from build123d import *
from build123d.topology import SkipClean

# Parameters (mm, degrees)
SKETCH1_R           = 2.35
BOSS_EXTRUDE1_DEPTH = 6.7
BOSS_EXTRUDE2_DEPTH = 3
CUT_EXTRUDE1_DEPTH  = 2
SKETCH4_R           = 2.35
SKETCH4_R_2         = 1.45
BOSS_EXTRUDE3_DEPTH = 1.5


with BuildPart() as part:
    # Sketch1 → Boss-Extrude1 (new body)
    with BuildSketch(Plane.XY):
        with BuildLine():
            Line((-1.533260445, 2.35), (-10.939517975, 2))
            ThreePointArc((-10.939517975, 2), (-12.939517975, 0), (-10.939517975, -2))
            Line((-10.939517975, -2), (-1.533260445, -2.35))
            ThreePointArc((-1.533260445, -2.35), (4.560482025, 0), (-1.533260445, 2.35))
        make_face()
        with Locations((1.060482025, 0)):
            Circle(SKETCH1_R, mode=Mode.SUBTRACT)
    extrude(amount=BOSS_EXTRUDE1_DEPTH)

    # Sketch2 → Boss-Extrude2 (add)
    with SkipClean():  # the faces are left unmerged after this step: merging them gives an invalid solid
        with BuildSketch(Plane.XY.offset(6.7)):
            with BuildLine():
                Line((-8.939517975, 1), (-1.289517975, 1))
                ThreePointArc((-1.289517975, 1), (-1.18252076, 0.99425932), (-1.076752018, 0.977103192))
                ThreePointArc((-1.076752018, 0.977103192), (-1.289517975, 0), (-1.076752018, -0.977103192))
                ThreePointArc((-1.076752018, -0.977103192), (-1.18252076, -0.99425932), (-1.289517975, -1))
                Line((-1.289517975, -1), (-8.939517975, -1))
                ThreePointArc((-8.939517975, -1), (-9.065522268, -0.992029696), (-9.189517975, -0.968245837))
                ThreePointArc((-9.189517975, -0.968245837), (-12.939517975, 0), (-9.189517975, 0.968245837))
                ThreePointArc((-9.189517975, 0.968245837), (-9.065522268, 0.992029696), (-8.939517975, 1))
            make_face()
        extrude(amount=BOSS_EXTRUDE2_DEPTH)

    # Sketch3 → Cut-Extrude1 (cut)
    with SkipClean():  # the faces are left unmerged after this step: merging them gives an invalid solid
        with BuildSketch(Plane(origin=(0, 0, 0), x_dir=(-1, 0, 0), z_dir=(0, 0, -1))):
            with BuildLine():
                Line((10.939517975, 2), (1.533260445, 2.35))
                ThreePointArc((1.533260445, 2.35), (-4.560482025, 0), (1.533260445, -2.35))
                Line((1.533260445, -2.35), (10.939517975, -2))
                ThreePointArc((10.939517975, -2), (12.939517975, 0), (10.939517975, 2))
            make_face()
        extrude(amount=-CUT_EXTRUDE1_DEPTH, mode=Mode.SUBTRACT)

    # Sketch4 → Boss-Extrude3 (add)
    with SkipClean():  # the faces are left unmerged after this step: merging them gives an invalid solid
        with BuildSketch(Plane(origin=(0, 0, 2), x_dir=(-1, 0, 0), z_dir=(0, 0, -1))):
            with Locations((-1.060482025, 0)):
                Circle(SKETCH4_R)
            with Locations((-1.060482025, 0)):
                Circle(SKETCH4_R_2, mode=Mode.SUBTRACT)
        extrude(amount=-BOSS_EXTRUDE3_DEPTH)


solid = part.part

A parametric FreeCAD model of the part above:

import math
import FreeCAD as App
import Part
import Sketcher
from FreeCAD import Vector
Q = App.Units.Quantity

doc = App.newDocument("Part")
body = doc.addObject("PartDesign::Body", "Body")

# Sketch on XY plane
sketch1 = body.newObject("Sketcher::SketchObject", "Sketch")
sketch1.AttachmentSupport = (doc.getObject("XY_Plane"), [""])
sketch1.MapMode = "FlatFace"
sketch1.addGeometry(Part.LineSegment(Vector(-1.5, 2.4, 0), Vector(-10.9, 2, 0)), False)
sketch1.addGeometry(Part.ArcOfCircle(Part.Circle(Vector(-10.9, 0, 0), Vector(0, 0, 1), 2), math.radians(90), math.radians(270)), False)
sketch1.addGeometry(Part.LineSegment(Vector(-10.9, -2, 0), Vector(-1.5, -2.4, 0)), False)
sketch1.addGeometry(Part.ArcOfCircle(Part.Circle(Vector(1.1, 0, 0), Vector(0, 0, 1), 3.5), math.radians(-138), math.radians(138)), False)
sketch1.addGeometry(Part.Circle(Vector(1.1, 0, 0), Vector(0, 0, 1), 2.4), False)
sketch1.addConstraint(Sketcher.Constraint("Coincident", 0, 2, 1, 1))
sketch1.addConstraint(Sketcher.Constraint("Coincident", 1, 2, 2, 1))
sketch1.addConstraint(Sketcher.Constraint("Coincident", 2, 2, 3, 1))
sketch1.addConstraint(Sketcher.Constraint("Coincident", 3, 2, 0, 1))
sketch1.addConstraint(Sketcher.Constraint("Coincident", 4, 3, 3, 3))
sketch1.addConstraint(Sketcher.Constraint("Symmetric", 0, 2, 1, 2, -1))
sketch1.addConstraint(Sketcher.Constraint("Symmetric", 2, 2, 3, 2, -1))
sketch1.addConstraint(Sketcher.Constraint("Vertical", 1, 3, 0, 2))
sketch1.addConstraint(Sketcher.Constraint("Radius", 1, Q("2 mm")))
sketch1.addConstraint(Sketcher.Constraint("Diameter", 4, Q("4.7 mm")))
sketch1.addConstraint(Sketcher.Constraint("Radius", 3, Q("3.5 mm")))
sketch1.addConstraint(Sketcher.Constraint("DistanceX", 1, 3, 3, 3, Q("12 mm")))
sketch1.addConstraint(Sketcher.Constraint("DistanceY", 2, 2, 3, 2, Q("4.7 mm")))
sketch1.addConstraint(Sketcher.Constraint("DistanceX", 2, 2, -1, 1, Q("1.53326 mm")))
pad1 = body.newObject("PartDesign::Pad", "Pad")
pad1.Profile = sketch1
pad1.Length = 6.7

# Sketch on XY plane
sketch2 = body.newObject("Sketcher::SketchObject", "Sketch001")
sketch2.AttachmentSupport = (doc.getObject("XY_Plane"), [""])
sketch2.MapMode = "FlatFace"
sketch2.AttachmentOffset = App.Placement(Vector(0, 0, 6.7), App.Rotation())
sketch2.addGeometry(Part.LineSegment(Vector(-1.29, 1, 0), Vector(-8.94, 1, 0)), False)
sketch2.addGeometry(Part.ArcOfCircle(Part.Circle(Vector(-8.94, 0, 0), Vector(0, 0, 1), 1), math.radians(90), math.radians(104.48)), False)
sketch2.addGeometry(Part.ArcOfCircle(Part.Circle(Vector(-10.94, 0, 0), Vector(0, 0, 1), 2), math.radians(29), math.radians(331)), False)
sketch2.addGeometry(Part.ArcOfCircle(Part.Circle(Vector(-8.94, 0, 0), Vector(0, 0, 1), 1), math.radians(-104.48), math.radians(-90)), False)
sketch2.addGeometry(Part.LineSegment(Vector(-8.94, -1, 0), Vector(-1.29, -1, 0)), False)
sketch2.addGeometry(Part.ArcOfCircle(Part.Circle(Vector(-1.29, 0, 0), Vector(0, 0, 1), 1), math.radians(-90), math.radians(-77.72)), False)
sketch2.addGeometry(Part.ArcOfCircle(Part.Circle(Vector(1.06, 0, 0), Vector(0, 0, 1), 2.35), math.radians(155), math.radians(205)), False)
sketch2.addGeometry(Part.ArcOfCircle(Part.Circle(Vector(-1.29, 0, 0), Vector(0, 0, 1), 1), math.radians(77.72), math.radians(90)), False)
sketch2.addConstraint(Sketcher.Constraint("Tangent", 0, 2, 1, 1))
sketch2.addConstraint(Sketcher.Constraint("Coincident", 1, 2, 2, 1))
sketch2.addConstraint(Sketcher.Constraint("Coincident", 2, 2, 3, 1))
sketch2.addConstraint(Sketcher.Constraint("Tangent", 3, 2, 4, 1))
sketch2.addConstraint(Sketcher.Constraint("Tangent", 4, 2, 5, 1))
sketch2.addConstraint(Sketcher.Constraint("Coincident", 5, 2, 6, 2))
sketch2.addConstraint(Sketcher.Constraint("Coincident", 6, 1, 7, 1))
sketch2.addConstraint(Sketcher.Constraint("Tangent", 7, 2, 0, 1))
sketch2.addConstraint(Sketcher.Constraint("Horizontal", 0))
sketch2.addConstraint(Sketcher.Constraint("Horizontal", 4))
sketch2.addConstraint(Sketcher.Constraint("Coincident", 3, 3, 1, 3))
sketch2.addConstraint(Sketcher.Constraint("Coincident", 7, 3, 5, 3))
sketch2.addConstraint(Sketcher.Constraint("Equal", 1, 3))
sketch2.addConstraint(Sketcher.Constraint("Equal", 3, 5))
sketch2.addConstraint(Sketcher.Constraint("Symmetric", 1, 2, 2, 2, -1))
sketch2.addConstraint(Sketcher.Constraint("PointOnObject", 6, 3, -1))
sketch2.addConstraint(Sketcher.Constraint("Radius", 1, Q("1 mm")))
sketch2.addConstraint(Sketcher.Constraint("Radius", 2, Q("2 mm")))
sketch2.addConstraint(Sketcher.Constraint("Radius", 6, Q("2.35 mm")))
sketch2.addConstraint(Sketcher.Constraint("DistanceX", 2, 3, 1, 3, Q("2 mm")))
sketch2.addConstraint(Sketcher.Constraint("DistanceX", 1, 3, 6, 3, Q("10 mm")))
sketch2.addConstraint(Sketcher.Constraint("DistanceX", 0, 2, 0, 1, Q("7.65 mm")))
sketch2.addConstraint(Sketcher.Constraint("DistanceX", 1, 3, -1, 1, Q("8.939518 mm")))
pad2 = body.newObject("PartDesign::Pad", "Pad001")
pad2.Profile = sketch2
pad2.Length = 3

# Sketch on XY plane
sketch3 = body.newObject("Sketcher::SketchObject", "Sketch002")
sketch3.AttachmentSupport = (doc.getObject("XY_Plane"), [""])
sketch3.MapMode = "FlatFace"
sketch3.addGeometry(Part.LineSegment(Vector(-10.9, 2, 0), Vector(-1.5, 2.4, 0)), False)
sketch3.addGeometry(Part.ArcOfCircle(Part.Circle(Vector(1.1, 0, 0), Vector(0, 0, 1), 3.5), math.radians(-138), math.radians(138)), False)
sketch3.addGeometry(Part.LineSegment(Vector(-1.5, -2.4, 0), Vector(-10.9, -2, 0)), False)
sketch3.addGeometry(Part.ArcOfCircle(Part.Circle(Vector(-10.9, 0, 0), Vector(0, 0, 1), 2), math.radians(90), math.radians(270)), False)
sketch3.addConstraint(Sketcher.Constraint("Coincident", 0, 2, 1, 2))
sketch3.addConstraint(Sketcher.Constraint("Coincident", 1, 1, 2, 1))
sketch3.addConstraint(Sketcher.Constraint("Coincident", 2, 2, 3, 2))
sketch3.addConstraint(Sketcher.Constraint("Coincident", 3, 1, 0, 1))
sketch3.addConstraint(Sketcher.Constraint("Symmetric", 0, 2, 1, 1, -1))
sketch3.addConstraint(Sketcher.Constraint("Symmetric", 2, 2, 3, 1, -1))
sketch3.addConstraint(Sketcher.Constraint("Vertical", 3, 3, 2, 2))
sketch3.addConstraint(Sketcher.Constraint("Radius", 3, Q("2 mm")))
sketch3.addConstraint(Sketcher.Constraint("Radius", 1, Q("3.5 mm")))
sketch3.addConstraint(Sketcher.Constraint("DistanceX", 3, 3, 1, 3, Q("12 mm")))
sketch3.addConstraint(Sketcher.Constraint("DistanceY", 1, 1, 0, 2, Q("4.7 mm")))
sketch3.addConstraint(Sketcher.Constraint("DistanceX", 0, 2, -1, 1, Q("1.53326 mm")))
pocket1 = body.newObject("PartDesign::Pocket", "Pocket")
pocket1.Profile = sketch3
pocket1.Length = 2
pocket1.Reversed = True

# Sketch on XY plane
sketch4 = body.newObject("Sketcher::SketchObject", "Sketch003")
sketch4.AttachmentSupport = (doc.getObject("XY_Plane"), [""])
sketch4.MapMode = "FlatFace"
sketch4.AttachmentOffset = App.Placement(Vector(0, 0, 2), App.Rotation())
sketch4.addGeometry(Part.Circle(Vector(1.1, 0, 0), Vector(0, 0, 1), 2.4), False)
sketch4.addGeometry(Part.Circle(Vector(1.1, 0, 0), Vector(0, 0, 1), 1.4), False)
sketch4.addConstraint(Sketcher.Constraint("Coincident", 1, 3, 0, 3))
sketch4.addConstraint(Sketcher.Constraint("PointOnObject", 0, 3, -1))
sketch4.addConstraint(Sketcher.Constraint("Diameter", 0, Q("4.7 mm")))
sketch4.addConstraint(Sketcher.Constraint("Diameter", 1, Q("2.9 mm")))
sketch4.addConstraint(Sketcher.Constraint("DistanceX", -1, 1, 0, 3, Q("1.060482 mm")))
pad3 = body.newObject("PartDesign::Pad", "Pad002")
pad3.Profile = sketch4
pad3.Length = 1.5

doc.recompute()
